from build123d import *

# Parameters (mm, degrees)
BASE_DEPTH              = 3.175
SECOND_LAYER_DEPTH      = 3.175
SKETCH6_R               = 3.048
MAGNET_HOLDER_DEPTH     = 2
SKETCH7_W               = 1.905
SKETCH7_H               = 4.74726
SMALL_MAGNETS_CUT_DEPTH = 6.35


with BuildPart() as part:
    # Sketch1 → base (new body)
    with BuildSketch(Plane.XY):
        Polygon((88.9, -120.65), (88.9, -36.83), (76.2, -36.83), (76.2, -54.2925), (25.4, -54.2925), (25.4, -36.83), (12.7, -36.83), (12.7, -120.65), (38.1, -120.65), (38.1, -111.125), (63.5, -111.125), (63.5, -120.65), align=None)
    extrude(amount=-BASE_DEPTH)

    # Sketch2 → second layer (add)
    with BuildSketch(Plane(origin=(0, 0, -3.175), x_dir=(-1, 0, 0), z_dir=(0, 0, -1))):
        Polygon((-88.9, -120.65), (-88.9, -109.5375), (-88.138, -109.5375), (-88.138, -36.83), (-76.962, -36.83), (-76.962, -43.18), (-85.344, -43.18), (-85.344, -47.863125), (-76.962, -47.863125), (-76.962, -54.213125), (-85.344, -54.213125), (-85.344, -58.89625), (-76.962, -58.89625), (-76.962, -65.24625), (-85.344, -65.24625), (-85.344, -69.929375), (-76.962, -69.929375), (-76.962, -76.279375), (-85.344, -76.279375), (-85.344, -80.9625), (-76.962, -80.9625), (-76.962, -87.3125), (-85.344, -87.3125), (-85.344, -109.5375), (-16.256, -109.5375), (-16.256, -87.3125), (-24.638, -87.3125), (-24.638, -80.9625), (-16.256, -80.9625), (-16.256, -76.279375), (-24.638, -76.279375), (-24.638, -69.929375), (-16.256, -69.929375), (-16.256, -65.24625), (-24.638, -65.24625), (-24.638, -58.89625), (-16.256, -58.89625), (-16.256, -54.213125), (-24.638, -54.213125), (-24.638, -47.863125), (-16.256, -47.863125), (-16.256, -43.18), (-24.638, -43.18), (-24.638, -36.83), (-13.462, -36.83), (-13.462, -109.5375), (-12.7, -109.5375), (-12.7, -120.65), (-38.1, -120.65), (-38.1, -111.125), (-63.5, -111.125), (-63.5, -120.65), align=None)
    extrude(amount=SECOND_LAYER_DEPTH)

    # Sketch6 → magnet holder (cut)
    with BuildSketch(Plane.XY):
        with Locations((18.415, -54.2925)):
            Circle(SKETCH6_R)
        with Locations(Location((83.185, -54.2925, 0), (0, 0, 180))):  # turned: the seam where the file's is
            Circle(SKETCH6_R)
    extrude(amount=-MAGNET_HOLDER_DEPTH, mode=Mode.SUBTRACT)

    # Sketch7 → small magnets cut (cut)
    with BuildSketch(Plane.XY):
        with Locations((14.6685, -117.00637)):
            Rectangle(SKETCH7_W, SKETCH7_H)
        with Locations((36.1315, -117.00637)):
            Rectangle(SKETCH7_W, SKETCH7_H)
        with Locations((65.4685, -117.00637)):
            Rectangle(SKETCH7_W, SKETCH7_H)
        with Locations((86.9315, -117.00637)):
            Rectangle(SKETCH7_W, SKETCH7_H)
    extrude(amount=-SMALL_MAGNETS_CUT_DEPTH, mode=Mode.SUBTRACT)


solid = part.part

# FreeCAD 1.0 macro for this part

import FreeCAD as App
import Part
import Sketcher
from FreeCAD import Vector
Q = App.Units.Quantity


def add_polygon(sketch, points):
    """Adds a closed chain of lines whose ends are joined by coincident constraints."""
    first, n = sketch.GeometryCount, len(points)
    for a, b in zip(points, points[1:] + points[:1]):
        sketch.addGeometry(Part.LineSegment(App.Vector(*a, 0), App.Vector(*b, 0)), False)
    for i in range(n):
        sketch.addConstraint(Sketcher.Constraint("Coincident", first + i, 2, first + (i + 1) % n, 1))

doc = App.newDocument("Part")
body = doc.addObject("PartDesign::Body", "Body")

# Sketch on XY plane
sketch1 = doc.addObject("Sketcher::SketchObject", "Sketch")
body.addObject(sketch1)
sketch1.AttachmentSupport = (doc.XY_Plane, [""])
sketch1.MapMode = "FlatFace"
add_polygon(sketch1, [(89, -121), (89, -37), (76, -37), (76, -54), (25, -54), (25, -37), (13, -37), (13, -121), (38, -121), (38, -111), (64, -111), (64, -121)])  # lines 0-11
sketch1.addConstraint([
    Sketcher.Constraint("Vertical", 0),
    Sketcher.Constraint("Horizontal", 1),
    Sketcher.Constraint("Vertical", 2),
    Sketcher.Constraint("Horizontal", 3),
    Sketcher.Constraint("Vertical", 4),
    Sketcher.Constraint("Horizontal", 5),
    Sketcher.Constraint("Vertical", 6),
    Sketcher.Constraint("Horizontal", 7),
    Sketcher.Constraint("Vertical", 8),
    Sketcher.Constraint("Horizontal", 9),
    Sketcher.Constraint("Vertical", 10),
    Sketcher.Constraint("Horizontal", 11),
    Sketcher.Constraint("Horizontal", 1, 2, 4, 2),
    Sketcher.Constraint("Horizontal", 7, 2, 10, 2),
    Sketcher.Constraint("Equal", 1, 5),
    Sketcher.Constraint("Equal", 7, 9),
    Sketcher.Constraint("Equal", 9, 11),
    Sketcher.Constraint("DistanceX", 3, 2, 3, 1, Q("2 in")),
    Sketcher.Constraint("DistanceX", 7, 1, 7, 2, Q("1 in")),
    Sketcher.Constraint("DistanceY", 0, 1, 0, 2, Q("3.3 in")),
    Sketcher.Constraint("DistanceX", -1, 1, 1, 2, Q("3 in")),
    Sketcher.Constraint("DistanceY", 2, 2, 2, 1, Q("0.6875 in")),
    Sketcher.Constraint("DistanceY", 8, 1, 8, 2, Q("0.375 in")),
    Sketcher.Constraint("DistanceY", 0, 2, -1, 1, Q("1.45 in")),
])
pad1 = doc.addObject("PartDesign::Pad", "Pad")
body.addObject(pad1)
pad1.Profile = sketch1
pad1.Length = Q("0.125 in")
pad1.Reversed = True

# Sketch on XY plane
sketch2 = doc.addObject("Sketcher::SketchObject", "Sketch001")
body.addObject(sketch2)
sketch2.AttachmentSupport = (doc.XY_Plane, [""])
sketch2.MapMode = "FlatFace"
sketch2.AttachmentOffset = App.Placement(Vector(0, 0, -0.125 * 25.4), App.Rotation())
add_polygon(sketch2, [(88.9, -109.5), (88.9, -120.7), (63.5, -120.7), (63.5, -111.1), (38.1, -111.1), (38.1, -120.7), (12.7, -120.7), (12.7, -109.5), (13.5, -109.5), (13.5, -36.8), (24.6, -36.8), (24.6, -43.2), (16.3, -43.2), (16.3, -47.9), (24.6, -47.9), (24.6, -54.2), (16.3, -54.2), (16.3, -58.9), (24.6, -58.9), (24.6, -65.2), (16.3, -65.2), (16.3, -69.9), (24.6, -69.9), (24.6, -76.3), (16.3, -76.3), (16.3, -81), (24.6, -81), (24.6, -87.3), (16.3, -87.3), (16.3, -109.5), (85.3, -109.5), (85.3, -87.3), (77, -87.3), (77, -81), (85.3, -81), (85.3, -76.3), (77, -76.3), (77, -69.9), (85.3, -69.9), (85.3, -65.2), (77, -65.2), (77, -58.9), (85.3, -58.9), (85.3, -54.2), (77, -54.2), (77, -47.9), (85.3, -47.9), (85.3, -43.2), (77, -43.2), (77, -36.8), (88.1, -36.8), (88.1, -109.5)])  # lines 0-51
sketch2.addConstraint([
    Sketcher.Constraint("Vertical", 0),
    Sketcher.Constraint("Horizontal", 1),
    Sketcher.Constraint("Vertical", 2),
    Sketcher.Constraint("Horizontal", 3),
    Sketcher.Constraint("Vertical", 4),
    Sketcher.Constraint("Horizontal", 5),
    Sketcher.Constraint("Vertical", 6),
    Sketcher.Constraint("Horizontal", 7),
    Sketcher.Constraint("Vertical", 8),
    Sketcher.Constraint("Horizontal", 9),
    Sketcher.Constraint("Vertical", 10),
    Sketcher.Constraint("Horizontal", 11),
    Sketcher.Constraint("Vertical", 12),
    Sketcher.Constraint("Horizontal", 13),
    Sketcher.Constraint("Vertical", 14),
    Sketcher.Constraint("Horizontal", 15),
    Sketcher.Constraint("Vertical", 16),
    Sketcher.Constraint("Horizontal", 17),
    Sketcher.Constraint("Vertical", 18),
    Sketcher.Constraint("Horizontal", 19),
    Sketcher.Constraint("Vertical", 20),
    Sketcher.Constraint("Horizontal", 21),
    Sketcher.Constraint("Vertical", 22),
    Sketcher.Constraint("Horizontal", 23),
    Sketcher.Constraint("Vertical", 24),
    Sketcher.Constraint("Horizontal", 25),
    Sketcher.Constraint("Vertical", 26),
    Sketcher.Constraint("Horizontal", 27),
    Sketcher.Constraint("Vertical", 28),
    Sketcher.Constraint("Horizontal", 29),
    Sketcher.Constraint("Vertical", 30),
    Sketcher.Constraint("Horizontal", 31),
    Sketcher.Constraint("Vertical", 32),
    Sketcher.Constraint("Horizontal", 33),
    Sketcher.Constraint("Vertical", 34),
    Sketcher.Constraint("Horizontal", 35),
    Sketcher.Constraint("Vertical", 36),
    Sketcher.Constraint("Horizontal", 37),
    Sketcher.Constraint("Vertical", 38),
    Sketcher.Constraint("Horizontal", 39),
    Sketcher.Constraint("Vertical", 40),
    Sketcher.Constraint("Horizontal", 41),
    Sketcher.Constraint("Vertical", 42),
    Sketcher.Constraint("Horizontal", 43),
    Sketcher.Constraint("Vertical", 44),
    Sketcher.Constraint("Horizontal", 45),
    Sketcher.Constraint("Vertical", 46),
    Sketcher.Constraint("Horizontal", 47),
    Sketcher.Constraint("Vertical", 48),
    Sketcher.Constraint("Horizontal", 49),
    Sketcher.Constraint("Vertical", 50),
    Sketcher.Constraint("Horizontal", 51),
    Sketcher.Constraint("Horizontal", 1, 2, 4, 2),
    Sketcher.Constraint("Horizontal", 7, 2, 28, 2),
    Sketcher.Constraint("Horizontal", 27, 2, 30, 2),
    Sketcher.Constraint("Horizontal", 25, 2, 32, 2),
    Sketcher.Constraint("Horizontal", 23, 2, 34, 2),
    Sketcher.Constraint("Horizontal", 21, 2, 36, 2),
    Sketcher.Constraint("Horizontal", 19, 2, 38, 2),
    Sketcher.Constraint("Horizontal", 17, 2, 40, 2),
    Sketcher.Constraint("Horizontal", 15, 2, 42, 2),
    Sketcher.Constraint("Horizontal", 13, 2, 44, 2),
    Sketcher.Constraint("Horizontal", 11, 2, 46, 2),
    Sketcher.Constraint("Horizontal", 9, 2, 48, 2),
    Sketcher.Constraint("Horizontal", 29, 2, 50, 2),
    Sketcher.Constraint("Vertical", 10, 2, 13, 2),
    Sketcher.Constraint("Vertical", 12, 2, 15, 2),
    Sketcher.Constraint("Vertical", 14, 2, 17, 2),
    Sketcher.Constraint("Vertical", 16, 2, 19, 2),
    Sketcher.Constraint("Vertical", 18, 2, 21, 2),
    Sketcher.Constraint("Vertical", 20, 2, 23, 2),
    Sketcher.Constraint("Vertical", 22, 2, 25, 2),
    Sketcher.Constraint("Vertical", 24, 2, 27, 2),
    Sketcher.Constraint("Vertical", 30, 2, 33, 2),
    Sketcher.Constraint("Vertical", 32, 2, 35, 2),
    Sketcher.Constraint("Vertical", 34, 2, 37, 2),
    Sketcher.Constraint("Vertical", 36, 2, 39, 2),
    Sketcher.Constraint("Vertical", 38, 2, 41, 2),
    Sketcher.Constraint("Vertical", 40, 2, 43, 2),
    Sketcher.Constraint("Vertical", 42, 2, 45, 2),
    Sketcher.Constraint("Vertical", 44, 2, 47, 2),
    Sketcher.Constraint("Equal", 1, 3),
    Sketcher.Constraint("Equal", 3, 5),
    Sketcher.Constraint("Equal", 27, 31),
    Sketcher.Constraint("Equal", 9, 49),
    Sketcher.Constraint("Equal", 7, 51),
    Sketcher.Constraint("Equal", 10, 14),
    Sketcher.Constraint("Equal", 12, 16),
    Sketcher.Constraint("Equal", 14, 18),
    Sketcher.Constraint("Equal", 16, 20),
    Sketcher.Constraint("Equal", 18, 22),
    Sketcher.Constraint("Equal", 20, 24),
    Sketcher.Constraint("Equal", 22, 26),
    Sketcher.Constraint("DistanceX", 1, 2, 1, 1, Q("1 in")),
    Sketcher.Constraint("DistanceX", 7, 1, 7, 2, Q("0.03 in")),
    Sketcher.Constraint("DistanceX", 9, 1, 9, 2, Q("0.44 in")),
    Sketcher.Constraint("DistanceX", 11, 2, 11, 1, Q("0.33 in")),
    Sketcher.Constraint("DistanceY", 10, 2, 10, 1, Q("0.25 in")),
    Sketcher.Constraint("DistanceX", -1, 1, 0, 2, Q("3.5 in")),
    Sketcher.Constraint("DistanceY", 10, 2, -1, 1, Q("1.7 in")),
    Sketcher.Constraint("DistanceY", 5, 2, 8, 2, Q("3.3 in")),
    Sketcher.Constraint("DistanceY", 0, 2, 0, 1, Q("0.4375 in")),
    Sketcher.Constraint("DistanceY", 2, 1, 2, 2, Q("0.375 in")),
    Sketcher.Constraint("DistanceY", 28, 2, 28, 1, Q("0.875 in")),
])
pad2 = doc.addObject("PartDesign::Pad", "Pad001")
body.addObject(pad2)
pad2.Profile = sketch2
pad2.Length = Q("0.125 in")
pad2.Reversed = True

# Sketch on XY plane
sketch3 = doc.addObject("Sketcher::SketchObject", "Sketch002")
body.addObject(sketch3)
sketch3.AttachmentSupport = (doc.XY_Plane, [""])
sketch3.MapMode = "FlatFace"
sketch3.addGeometry([
    Part.Circle(Vector(18.4, -54.3, 0), Vector(0, 0, 1), 3),
    Part.Circle(Vector(83.2, -54.3, 0), Vector(0, 0, 1), 3),
], False)
sketch3.addConstraint([
    Sketcher.Constraint("Equal", 0, 1),
    Sketcher.Constraint("Horizontal", 0, 3, 1, 3),
    Sketcher.Constraint("Diameter", 0, Q("0.24 in")),
    Sketcher.Constraint("DistanceX", 0, 3, 1, 3, Q("2.55 in")),
    Sketcher.Constraint("DistanceX", -1, 1, 0, 3, Q("0.725 in")),
    Sketcher.Constraint("DistanceY", 0, 3, -1, 1, Q("2.1375 in")),
])
pocket1 = doc.addObject("PartDesign::Pocket", "Pocket")
body.addObject(pocket1)
pocket1.Profile = sketch3
pocket1.Length = 2

# Sketch on XY plane
sketch4 = doc.addObject("Sketcher::SketchObject", "Sketch003")
body.addObject(sketch4)
sketch4.AttachmentSupport = (doc.XY_Plane, [""])
sketch4.MapMode = "FlatFace"
add_polygon(sketch4, [(13.7, -114.6), (13.7, -119.4), (15.6, -119.4), (15.6, -114.6)])  # lines 0-3
add_polygon(sketch4, [(35.2, -114.6), (35.2, -119.4), (37.1, -119.4), (37.1, -114.6)])  # lines 4-7
add_polygon(sketch4, [(64.5, -114.6), (64.5, -119.4), (66.4, -119.4), (66.4, -114.6)])  # lines 8-11
add_polygon(sketch4, [(86, -114.6), (86, -119.4), (87.9, -119.4), (87.9, -114.6)])  # lines 12-15
sketch4.addConstraint([
    Sketcher.Constraint("Vertical", 0),
    Sketcher.Constraint("Horizontal", 1),
    Sketcher.Constraint("Vertical", 2),
    Sketcher.Constraint("Horizontal", 3),
    Sketcher.Constraint("Vertical", 4),
    Sketcher.Constraint("Horizontal", 5),
    Sketcher.Constraint("Vertical", 6),
    Sketcher.Constraint("Horizontal", 7),
    Sketcher.Constraint("Vertical", 8),
    Sketcher.Constraint("Horizontal", 9),
    Sketcher.Constraint("Vertical", 10),
    Sketcher.Constraint("Horizontal", 11),
    Sketcher.Constraint("Vertical", 12),
    Sketcher.Constraint("Horizontal", 13),
    Sketcher.Constraint("Vertical", 14),
    Sketcher.Constraint("Horizontal", 15),
    Sketcher.Constraint("Horizontal", 1, 2, 4, 2),
    Sketcher.Constraint("Horizontal", 3, 2, 6, 2),
    Sketcher.Constraint("Horizontal", 5, 2, 8, 2),
    Sketcher.Constraint("Horizontal", 7, 2, 10, 2),
    Sketcher.Constraint("Horizontal", 9, 2, 12, 2),
    Sketcher.Constraint("Horizontal", 11, 2, 14, 2),
    Sketcher.Constraint("Equal", 3, 5),
    Sketcher.Constraint("Equal", 7, 9),
    Sketcher.Constraint("Equal", 11, 13),
    Sketcher.Constraint("DistanceY", 0, 2, -1, 1, Q("4.7 in")),
    Sketcher.Constraint("DistanceX", 1, 1, 1, 2, Q("0.075 in")),
    Sketcher.Constraint("DistanceX", -1, 1, 0, 2, Q("0.54 in")),
    Sketcher.Constraint("DistanceX", -1, 1, 5, 2, Q("1.46 in")),
    Sketcher.Constraint("DistanceX", -1, 1, 8, 2, Q("2.54 in")),
    Sketcher.Constraint("DistanceX", -1, 1, 13, 2, Q("3.46 in")),
    Sketcher.Constraint("DistanceY", 0, 2, 0, 1, Q("0.1869 in")),
])
pocket2 = doc.addObject("PartDesign::Pocket", "Pocket001")
body.addObject(pocket2)
pocket2.Profile = sketch4
pocket2.Length = Q("0.25 in")

doc.recompute()
